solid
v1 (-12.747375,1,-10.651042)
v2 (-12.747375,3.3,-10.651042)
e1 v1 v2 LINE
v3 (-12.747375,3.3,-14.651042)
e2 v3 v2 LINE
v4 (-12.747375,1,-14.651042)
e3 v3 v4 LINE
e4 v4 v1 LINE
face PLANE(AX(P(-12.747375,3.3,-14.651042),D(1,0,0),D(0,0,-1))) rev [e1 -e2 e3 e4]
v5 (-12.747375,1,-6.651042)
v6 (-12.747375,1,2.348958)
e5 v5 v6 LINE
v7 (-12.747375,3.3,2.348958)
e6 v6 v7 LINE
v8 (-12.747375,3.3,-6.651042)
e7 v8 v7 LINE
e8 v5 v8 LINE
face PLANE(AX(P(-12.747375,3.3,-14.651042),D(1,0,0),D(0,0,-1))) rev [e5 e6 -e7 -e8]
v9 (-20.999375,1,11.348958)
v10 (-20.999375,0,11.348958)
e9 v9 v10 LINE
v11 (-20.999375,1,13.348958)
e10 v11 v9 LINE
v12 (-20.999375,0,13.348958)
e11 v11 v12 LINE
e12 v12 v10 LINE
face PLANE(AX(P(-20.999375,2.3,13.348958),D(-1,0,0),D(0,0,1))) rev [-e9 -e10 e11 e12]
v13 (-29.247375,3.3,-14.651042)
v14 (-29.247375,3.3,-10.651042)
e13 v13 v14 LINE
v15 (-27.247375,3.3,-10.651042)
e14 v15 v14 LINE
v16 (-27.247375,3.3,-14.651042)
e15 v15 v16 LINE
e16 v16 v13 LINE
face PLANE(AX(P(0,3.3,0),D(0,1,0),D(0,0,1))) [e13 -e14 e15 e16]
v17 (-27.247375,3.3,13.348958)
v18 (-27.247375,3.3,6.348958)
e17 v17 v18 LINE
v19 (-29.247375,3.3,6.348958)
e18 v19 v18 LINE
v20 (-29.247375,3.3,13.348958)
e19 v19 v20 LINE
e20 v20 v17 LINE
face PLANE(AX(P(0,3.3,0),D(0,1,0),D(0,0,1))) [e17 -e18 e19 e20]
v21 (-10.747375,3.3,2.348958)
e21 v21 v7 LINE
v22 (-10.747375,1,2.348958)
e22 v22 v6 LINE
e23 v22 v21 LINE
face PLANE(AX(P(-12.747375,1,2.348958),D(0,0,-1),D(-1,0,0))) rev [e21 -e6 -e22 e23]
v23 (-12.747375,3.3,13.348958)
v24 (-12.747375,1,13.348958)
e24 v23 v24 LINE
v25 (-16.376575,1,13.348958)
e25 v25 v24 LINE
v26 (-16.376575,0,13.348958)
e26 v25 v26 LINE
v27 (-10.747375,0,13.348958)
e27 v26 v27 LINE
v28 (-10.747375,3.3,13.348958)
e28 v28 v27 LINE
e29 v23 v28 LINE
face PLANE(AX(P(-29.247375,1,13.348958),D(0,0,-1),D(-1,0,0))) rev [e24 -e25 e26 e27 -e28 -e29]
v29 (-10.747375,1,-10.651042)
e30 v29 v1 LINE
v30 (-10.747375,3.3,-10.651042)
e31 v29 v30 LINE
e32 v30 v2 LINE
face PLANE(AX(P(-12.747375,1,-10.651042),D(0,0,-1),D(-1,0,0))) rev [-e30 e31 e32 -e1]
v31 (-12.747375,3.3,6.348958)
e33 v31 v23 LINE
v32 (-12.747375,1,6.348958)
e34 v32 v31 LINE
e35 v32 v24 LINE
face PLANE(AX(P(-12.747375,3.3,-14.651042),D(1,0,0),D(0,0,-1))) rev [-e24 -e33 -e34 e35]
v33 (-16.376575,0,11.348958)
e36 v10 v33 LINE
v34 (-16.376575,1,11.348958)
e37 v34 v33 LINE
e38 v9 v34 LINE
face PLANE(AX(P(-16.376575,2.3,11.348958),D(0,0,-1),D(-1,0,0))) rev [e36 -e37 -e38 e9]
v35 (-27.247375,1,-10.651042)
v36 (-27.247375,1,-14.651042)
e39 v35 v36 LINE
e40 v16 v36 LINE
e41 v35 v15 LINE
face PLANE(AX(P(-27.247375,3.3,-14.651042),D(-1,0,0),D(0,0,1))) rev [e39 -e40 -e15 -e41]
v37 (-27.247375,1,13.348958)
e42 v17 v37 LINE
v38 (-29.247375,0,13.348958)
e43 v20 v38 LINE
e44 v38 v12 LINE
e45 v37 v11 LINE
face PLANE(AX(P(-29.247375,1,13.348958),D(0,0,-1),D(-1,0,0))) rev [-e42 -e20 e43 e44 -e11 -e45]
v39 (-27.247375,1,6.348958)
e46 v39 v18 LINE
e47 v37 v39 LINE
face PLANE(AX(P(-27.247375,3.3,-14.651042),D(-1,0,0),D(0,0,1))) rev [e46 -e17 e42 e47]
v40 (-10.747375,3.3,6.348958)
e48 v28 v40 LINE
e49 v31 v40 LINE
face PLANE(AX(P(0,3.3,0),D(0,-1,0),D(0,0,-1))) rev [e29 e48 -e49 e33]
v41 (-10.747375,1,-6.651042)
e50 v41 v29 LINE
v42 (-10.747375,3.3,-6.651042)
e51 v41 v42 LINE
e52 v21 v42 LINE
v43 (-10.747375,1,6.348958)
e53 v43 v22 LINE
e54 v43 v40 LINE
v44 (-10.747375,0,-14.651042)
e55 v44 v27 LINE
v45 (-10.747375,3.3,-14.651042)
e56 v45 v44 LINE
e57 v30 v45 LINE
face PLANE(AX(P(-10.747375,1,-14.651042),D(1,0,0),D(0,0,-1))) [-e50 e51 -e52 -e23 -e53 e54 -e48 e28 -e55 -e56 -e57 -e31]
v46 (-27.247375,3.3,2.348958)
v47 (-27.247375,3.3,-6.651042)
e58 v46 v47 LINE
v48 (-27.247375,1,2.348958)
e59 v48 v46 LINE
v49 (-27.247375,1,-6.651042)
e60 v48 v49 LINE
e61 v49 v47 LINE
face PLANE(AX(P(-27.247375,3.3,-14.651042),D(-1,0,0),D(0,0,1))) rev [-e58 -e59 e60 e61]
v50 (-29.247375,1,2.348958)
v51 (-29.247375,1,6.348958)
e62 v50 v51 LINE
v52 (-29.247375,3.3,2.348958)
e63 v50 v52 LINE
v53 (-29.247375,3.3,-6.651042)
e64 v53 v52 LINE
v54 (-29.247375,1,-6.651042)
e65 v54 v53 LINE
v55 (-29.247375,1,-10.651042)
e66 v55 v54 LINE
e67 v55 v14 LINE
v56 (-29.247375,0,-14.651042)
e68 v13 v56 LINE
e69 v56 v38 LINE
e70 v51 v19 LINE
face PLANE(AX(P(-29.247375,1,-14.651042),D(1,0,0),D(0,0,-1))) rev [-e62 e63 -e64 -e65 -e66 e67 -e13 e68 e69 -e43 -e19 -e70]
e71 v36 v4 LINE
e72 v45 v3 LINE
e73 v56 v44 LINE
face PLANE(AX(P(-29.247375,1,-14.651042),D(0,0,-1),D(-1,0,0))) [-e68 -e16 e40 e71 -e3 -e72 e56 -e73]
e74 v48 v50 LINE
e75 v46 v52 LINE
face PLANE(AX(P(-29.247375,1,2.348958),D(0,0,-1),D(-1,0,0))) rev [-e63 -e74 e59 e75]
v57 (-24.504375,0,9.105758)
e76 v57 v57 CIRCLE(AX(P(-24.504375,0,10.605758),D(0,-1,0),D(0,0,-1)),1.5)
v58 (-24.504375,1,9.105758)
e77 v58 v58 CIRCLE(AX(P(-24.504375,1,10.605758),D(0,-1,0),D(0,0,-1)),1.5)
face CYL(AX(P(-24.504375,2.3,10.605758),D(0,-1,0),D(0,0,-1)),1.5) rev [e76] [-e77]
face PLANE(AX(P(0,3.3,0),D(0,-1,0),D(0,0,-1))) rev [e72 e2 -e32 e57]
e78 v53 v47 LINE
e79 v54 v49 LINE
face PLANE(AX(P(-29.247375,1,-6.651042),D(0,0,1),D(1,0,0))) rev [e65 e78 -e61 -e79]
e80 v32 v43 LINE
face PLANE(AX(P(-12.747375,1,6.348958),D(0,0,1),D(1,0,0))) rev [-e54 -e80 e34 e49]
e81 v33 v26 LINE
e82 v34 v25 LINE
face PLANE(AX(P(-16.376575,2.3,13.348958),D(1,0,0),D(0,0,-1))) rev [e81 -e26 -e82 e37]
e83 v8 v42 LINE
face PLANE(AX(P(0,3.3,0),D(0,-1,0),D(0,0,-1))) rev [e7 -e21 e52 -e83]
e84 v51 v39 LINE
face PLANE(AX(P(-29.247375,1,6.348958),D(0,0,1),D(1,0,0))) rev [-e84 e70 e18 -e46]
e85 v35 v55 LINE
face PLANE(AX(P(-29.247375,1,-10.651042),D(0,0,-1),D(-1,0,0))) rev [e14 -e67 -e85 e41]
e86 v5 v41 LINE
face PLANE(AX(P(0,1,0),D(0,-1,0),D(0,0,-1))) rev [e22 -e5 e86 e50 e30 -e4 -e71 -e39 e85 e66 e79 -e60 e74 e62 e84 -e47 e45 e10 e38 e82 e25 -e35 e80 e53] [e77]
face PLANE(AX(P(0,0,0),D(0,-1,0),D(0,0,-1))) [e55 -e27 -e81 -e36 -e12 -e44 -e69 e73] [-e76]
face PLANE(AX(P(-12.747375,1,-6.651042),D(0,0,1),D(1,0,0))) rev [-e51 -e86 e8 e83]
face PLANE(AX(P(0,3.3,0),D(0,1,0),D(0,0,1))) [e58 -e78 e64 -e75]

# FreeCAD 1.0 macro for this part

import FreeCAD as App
import Part
import Sketcher
from FreeCAD import Vector

doc = App.newDocument("Part")
params = doc.addObject("Spreadsheet::Sheet", "Params")
for row, (alias, value) in enumerate([
    ("sketch1_height", "28 mm"),
    ("sketch1_width", "18.5 mm"),
    ("pad1_length", "1 mm"),
    ("sketch2_width", "2 mm"),
    ("sketch2_height", "28 mm"),
    ("pad2_length", "2.3 mm"),
    ("sketch3_diameter", "3 mm"),
    ("pocket1_length", "2.3 mm"),
    ("sketch4_height", "2 mm"),
    ("pocket2_length", "2.3 mm"),
    ("sketch5_width", "2 mm"),
    ("sketch5_height", "4 mm"),
    ("pocket3_length", "2.3 mm"),
], start=1):
    params.set(f"A{row}", alias)
    params.set(f"B{row}", "=" + value)
    params.setAlias(f"B{row}", alias)

body = doc.addObject("PartDesign::Body", "Body")

sketch1 = body.newObject("Sketcher::SketchObject", "Sketch")
sketch1.AttachmentSupport = (doc.getObject("XZ_Plane"), [""])
sketch1.MapMode = "FlatFace"
sketch1.addGeometry([
    Part.LineSegment(Vector(-29, -15, 0), Vector(-29, 13, 0)),
    Part.LineSegment(Vector(-29, 13, 0), Vector(-11, 13, 0)),
    Part.LineSegment(Vector(-11, 13, 0), Vector(-11, -15, 0)),
    Part.LineSegment(Vector(-11, -15, 0), Vector(-29, -15, 0)),
], False)
sketch1.addConstraint([
    Sketcher.Constraint("Coincident", 0, 2, 1, 1),
    Sketcher.Constraint("Coincident", 1, 2, 2, 1),
    Sketcher.Constraint("Coincident", 2, 2, 3, 1),
    Sketcher.Constraint("Coincident", 3, 2, 0, 1),
    Sketcher.Constraint("Vertical", 0),
    Sketcher.Constraint("Horizontal", 1),
    Sketcher.Constraint("Vertical", 2),
    Sketcher.Constraint("Horizontal", 3),
    Sketcher.Constraint("DistanceY", 0, 1, 0, 2, 28.0),
    Sketcher.Constraint("DistanceX", 1, 1, 1, 2, 18.5),
    Sketcher.Constraint("DistanceX", 0, 2, -1, 1, 29.247375),
    Sketcher.Constraint("DistanceY", -1, 1, 0, 2, 13.348958),
])
sketch1.setExpression("Constraints[8]", "Params.sketch1_height")
sketch1.setExpression("Constraints[9]", "Params.sketch1_width")
pad1 = body.newObject("PartDesign::Pad", "Pad")
pad1.Profile = sketch1
pad1.setExpression("Length", "Params.pad1_length")
pad1.Reversed = True

sketch2 = body.newObject("Sketcher::SketchObject", "Sketch001")
sketch2.AttachmentSupport = (doc.getObject("XZ_Plane"), [""])
sketch2.MapMode = "FlatFace"
sketch2.AttachmentOffset = App.Placement(Vector(0, 0, -1), App.Rotation())
sketch2.addGeometry([
    Part.LineSegment(Vector(-29.2, -14.7, 0), Vector(-29.2, 13.3, 0)),
    Part.LineSegment(Vector(-29.2, 13.3, 0), Vector(-27.2, 13.3, 0)),
    Part.LineSegment(Vector(-27.2, 13.3, 0), Vector(-27.2, -14.7, 0)),
    Part.LineSegment(Vector(-27.2, -14.7, 0), Vector(-29.2, -14.7, 0)),
    Part.LineSegment(Vector(-12.7, -14.7, 0), Vector(-12.7, 13.3, 0)),
    Part.LineSegment(Vector(-12.7, 13.3, 0), Vector(-10.7, 13.3, 0)),
    Part.LineSegment(Vector(-10.7, 13.3, 0), Vector(-10.7, -14.7, 0)),
    Part.LineSegment(Vector(-10.7, -14.7, 0), Vector(-12.7, -14.7, 0)),
], False)
sketch2.addConstraint([
    Sketcher.Constraint("Coincident", 0, 2, 1, 1),
    Sketcher.Constraint("Coincident", 1, 2, 2, 1),
    Sketcher.Constraint("Coincident", 2, 2, 3, 1),
    Sketcher.Constraint("Coincident", 3, 2, 0, 1),
    Sketcher.Constraint("Coincident", 4, 2, 5, 1),
    Sketcher.Constraint("Coincident", 5, 2, 6, 1),
    Sketcher.Constraint("Coincident", 6, 2, 7, 1),
    Sketcher.Constraint("Coincident", 7, 2, 4, 1),
    Sketcher.Constraint("Vertical", 0),
    Sketcher.Constraint("Horizontal", 1),
    Sketcher.Constraint("Vertical", 2),
    Sketcher.Constraint("Horizontal", 3),
    Sketcher.Constraint("Vertical", 4),
    Sketcher.Constraint("Horizontal", 5),
    Sketcher.Constraint("Vertical", 6),
    Sketcher.Constraint("Horizontal", 7),
    Sketcher.Constraint("Horizontal", 1, 2, 4, 2),
    Sketcher.Constraint("Horizontal", 3, 2, 6, 2),
    Sketcher.Constraint("Equal", 3, 5),
    Sketcher.Constraint("DistanceX", 1, 1, 1, 2, 2.0),
    Sketcher.Constraint("DistanceY", 0, 1, 0, 2, 28.0),
    Sketcher.Constraint("DistanceX", 1, 2, 4, 2, 14.5),
    Sketcher.Constraint("DistanceX", 0, 2, -1, 1, 29.247375),
    Sketcher.Constraint("DistanceY", -1, 1, 0, 2, 13.348958),
])
sketch2.setExpression("Constraints[19]", "Params.sketch2_width")
sketch2.setExpression("Constraints[20]", "Params.sketch2_height")
pad2 = body.newObject("PartDesign::Pad", "Pad001")
pad2.Profile = sketch2
pad2.setExpression("Length", "Params.pad2_length")
pad2.Reversed = True

sketch3 = body.newObject("Sketcher::SketchObject", "Sketch002")
sketch3.AttachmentSupport = (doc.getObject("XZ_Plane"), [""])
sketch3.MapMode = "FlatFace"
sketch3.addGeometry(Part.Circle(Vector(-24.5, 10.6, 0), Vector(0, 0, 1), 1.5), False)
sketch3.addConstraint([
    Sketcher.Constraint("Diameter", 0, 3.0),
    Sketcher.Constraint("DistanceX", 0, 3, -1, 1, 24.504375),
    Sketcher.Constraint("DistanceY", -1, 1, 0, 3, 10.605758),
])
sketch3.setExpression("Constraints[0]", "Params.sketch3_diameter")
pocket1 = body.newObject("PartDesign::Pocket", "Pocket")
pocket1.Profile = sketch3
pocket1.setExpression("Length", "Params.pocket1_length")

sketch4 = body.newObject("Sketcher::SketchObject", "Sketch003")
sketch4.AttachmentSupport = (doc.getObject("XZ_Plane"), [""])
sketch4.MapMode = "FlatFace"
sketch4.addGeometry([
    Part.LineSegment(Vector(-16.4, 11.3, 0), Vector(-16.4, 13.3, 0)),
    Part.LineSegment(Vector(-16.4, 13.3, 0), Vector(-21, 13.3, 0)),
    Part.LineSegment(Vector(-21, 13.3, 0), Vector(-21, 11.3, 0)),
    Part.LineSegment(Vector(-21, 11.3, 0), Vector(-16.4, 11.3, 0)),
], False)
sketch4.addConstraint([
    Sketcher.Constraint("Coincident", 0, 2, 1, 1),
    Sketcher.Constraint("Coincident", 1, 2, 2, 1),
    Sketcher.Constraint("Coincident", 2, 2, 3, 1),
    Sketcher.Constraint("Coincident", 3, 2, 0, 1),
    Sketcher.Constraint("Vertical", 0),
    Sketcher.Constraint("Horizontal", 1),
    Sketcher.Constraint("Vertical", 2),
    Sketcher.Constraint("Horizontal", 3),
    Sketcher.Constraint("DistanceY", 0, 1, 0, 2, 2.0),
    Sketcher.Constraint("DistanceX", 1, 2, 1, 1, 4.6228),
    Sketcher.Constraint("DistanceX", 0, 2, -1, 1, 16.376575),
    Sketcher.Constraint("DistanceY", -1, 1, 0, 2, 13.348958),
])
sketch4.setExpression("Constraints[8]", "Params.sketch4_height")
pocket2 = body.newObject("PartDesign::Pocket", "Pocket001")
pocket2.Profile = sketch4
pocket2.setExpression("Length", "Params.pocket2_length")

sketch5 = body.newObject("Sketcher::SketchObject", "Sketch004")
sketch5.AttachmentSupport = (doc.getObject("XZ_Plane"), [""])
sketch5.MapMode = "FlatFace"
sketch5.AttachmentOffset = App.Placement(Vector(0, 0, -3.3), App.Rotation())
sketch5.addGeometry([
    Part.LineSegment(Vector(-29.2, -10.7, 0), Vector(-29.2, -6.7, 0)),
    Part.LineSegment(Vector(-29.2, -6.7, 0), Vector(-27.2, -6.7, 0)),
    Part.LineSegment(Vector(-27.2, -6.7, 0), Vector(-27.2, -10.7, 0)),
    Part.LineSegment(Vector(-27.2, -10.7, 0), Vector(-29.2, -10.7, 0)),
    Part.LineSegment(Vector(-29.2, 2.3, 0), Vector(-29.2, 6.3, 0)),
    Part.LineSegment(Vector(-29.2, 6.3, 0), Vector(-27.2, 6.3, 0)),
    Part.LineSegment(Vector(-27.2, 6.3, 0), Vector(-27.2, 2.3, 0)),
    Part.LineSegment(Vector(-27.2, 2.3, 0), Vector(-29.2, 2.3, 0)),
    Part.LineSegment(Vector(-12.7, -10.7, 0), Vector(-12.7, -6.7, 0)),
    Part.LineSegment(Vector(-12.7, -6.7, 0), Vector(-10.7, -6.7, 0)),
    Part.LineSegment(Vector(-10.7, -6.7, 0), Vector(-10.7, -10.7, 0)),
    Part.LineSegment(Vector(-10.7, -10.7, 0), Vector(-12.7, -10.7, 0)),
    Part.LineSegment(Vector(-12.7, 2.3, 0), Vector(-12.7, 6.3, 0)),
    Part.LineSegment(Vector(-12.7, 6.3, 0), Vector(-10.7, 6.3, 0)),
    Part.LineSegment(Vector(-10.7, 6.3, 0), Vector(-10.7, 2.3, 0)),
    Part.LineSegment(Vector(-10.7, 2.3, 0), Vector(-12.7, 2.3, 0)),
], False)
sketch5.addConstraint([
    Sketcher.Constraint("Coincident", 0, 2, 1, 1),
    Sketcher.Constraint("Coincident", 1, 2, 2, 1),
    Sketcher.Constraint("Coincident", 2, 2, 3, 1),
    Sketcher.Constraint("Coincident", 3, 2, 0, 1),
    Sketcher.Constraint("Coincident", 4, 2, 5, 1),
    Sketcher.Constraint("Coincident", 5, 2, 6, 1),
    Sketcher.Constraint("Coincident", 6, 2, 7, 1),
    Sketcher.Constraint("Coincident", 7, 2, 4, 1),
    Sketcher.Constraint("Coincident", 8, 2, 9, 1),
    Sketcher.Constraint("Coincident", 9, 2, 10, 1),
    Sketcher.Constraint("Coincident", 10, 2, 11, 1),
    Sketcher.Constraint("Coincident", 11, 2, 8, 1),
    Sketcher.Constraint("Coincident", 12, 2, 13, 1),
    Sketcher.Constraint("Coincident", 13, 2, 14, 1),
    Sketcher.Constraint("Coincident", 14, 2, 15, 1),
    Sketcher.Constraint("Coincident", 15, 2, 12, 1),
    Sketcher.Constraint("Vertical", 0),
    Sketcher.Constraint("Horizontal", 1),
    Sketcher.Constraint("Vertical", 2),
    Sketcher.Constraint("Horizontal", 3),
    Sketcher.Constraint("Vertical", 4),
    Sketcher.Constraint("Horizontal", 5),
    Sketcher.Constraint("Vertical", 6),
    Sketcher.Constraint("Horizontal", 7),
    Sketcher.Constraint("Vertical", 8),
    Sketcher.Constraint("Horizontal", 9),
    Sketcher.Constraint("Vertical", 10),
    Sketcher.Constraint("Horizontal", 11),
    Sketcher.Constraint("Vertical", 12),
    Sketcher.Constraint("Horizontal", 13),
    Sketcher.Constraint("Vertical", 14),
    Sketcher.Constraint("Horizontal", 15),
    Sketcher.Constraint("Horizontal", 1, 2, 8, 2),
    Sketcher.Constraint("Horizontal", 3, 2, 10, 2),
    Sketcher.Constraint("Horizontal", 5, 2, 12, 2),
    Sketcher.Constraint("Horizontal", 7, 2, 14, 2),
    Sketcher.Constraint("Vertical", 3, 2, 4, 2),
    Sketcher.Constraint("Vertical", 2, 2, 5, 2),
    Sketcher.Constraint("Vertical", 11, 2, 12, 2),
    Sketcher.Constraint("Vertical", 10, 2, 13, 2),
    Sketcher.Constraint("Equal", 7, 9),
    Sketcher.Constraint("Equal", 2, 4),
    Sketcher.Constraint("DistanceX", 1, 1, 1, 2, 2.0),
    Sketcher.Constraint("DistanceY", 0, 1, 0, 2, 4.0),
    Sketcher.Constraint("DistanceY", 0, 2, 4, 2, 13.0),
    Sketcher.Constraint("DistanceX", 1, 2, 8, 2, 14.5),
    Sketcher.Constraint("DistanceX", 0, 2, -1, 1, 29.247375),
    Sketcher.Constraint("DistanceY", 0, 2, -1, 1, 6.651042),
])
sketch5.setExpression("Constraints[42]", "Params.sketch5_width")
sketch5.setExpression("Constraints[43]", "Params.sketch5_height")
pocket3 = body.newObject("PartDesign::Pocket", "Pocket002")
pocket3.Profile = sketch5
pocket3.setExpression("Length", "Params.pocket3_length")
pocket3.Reversed = True

doc.recompute()
